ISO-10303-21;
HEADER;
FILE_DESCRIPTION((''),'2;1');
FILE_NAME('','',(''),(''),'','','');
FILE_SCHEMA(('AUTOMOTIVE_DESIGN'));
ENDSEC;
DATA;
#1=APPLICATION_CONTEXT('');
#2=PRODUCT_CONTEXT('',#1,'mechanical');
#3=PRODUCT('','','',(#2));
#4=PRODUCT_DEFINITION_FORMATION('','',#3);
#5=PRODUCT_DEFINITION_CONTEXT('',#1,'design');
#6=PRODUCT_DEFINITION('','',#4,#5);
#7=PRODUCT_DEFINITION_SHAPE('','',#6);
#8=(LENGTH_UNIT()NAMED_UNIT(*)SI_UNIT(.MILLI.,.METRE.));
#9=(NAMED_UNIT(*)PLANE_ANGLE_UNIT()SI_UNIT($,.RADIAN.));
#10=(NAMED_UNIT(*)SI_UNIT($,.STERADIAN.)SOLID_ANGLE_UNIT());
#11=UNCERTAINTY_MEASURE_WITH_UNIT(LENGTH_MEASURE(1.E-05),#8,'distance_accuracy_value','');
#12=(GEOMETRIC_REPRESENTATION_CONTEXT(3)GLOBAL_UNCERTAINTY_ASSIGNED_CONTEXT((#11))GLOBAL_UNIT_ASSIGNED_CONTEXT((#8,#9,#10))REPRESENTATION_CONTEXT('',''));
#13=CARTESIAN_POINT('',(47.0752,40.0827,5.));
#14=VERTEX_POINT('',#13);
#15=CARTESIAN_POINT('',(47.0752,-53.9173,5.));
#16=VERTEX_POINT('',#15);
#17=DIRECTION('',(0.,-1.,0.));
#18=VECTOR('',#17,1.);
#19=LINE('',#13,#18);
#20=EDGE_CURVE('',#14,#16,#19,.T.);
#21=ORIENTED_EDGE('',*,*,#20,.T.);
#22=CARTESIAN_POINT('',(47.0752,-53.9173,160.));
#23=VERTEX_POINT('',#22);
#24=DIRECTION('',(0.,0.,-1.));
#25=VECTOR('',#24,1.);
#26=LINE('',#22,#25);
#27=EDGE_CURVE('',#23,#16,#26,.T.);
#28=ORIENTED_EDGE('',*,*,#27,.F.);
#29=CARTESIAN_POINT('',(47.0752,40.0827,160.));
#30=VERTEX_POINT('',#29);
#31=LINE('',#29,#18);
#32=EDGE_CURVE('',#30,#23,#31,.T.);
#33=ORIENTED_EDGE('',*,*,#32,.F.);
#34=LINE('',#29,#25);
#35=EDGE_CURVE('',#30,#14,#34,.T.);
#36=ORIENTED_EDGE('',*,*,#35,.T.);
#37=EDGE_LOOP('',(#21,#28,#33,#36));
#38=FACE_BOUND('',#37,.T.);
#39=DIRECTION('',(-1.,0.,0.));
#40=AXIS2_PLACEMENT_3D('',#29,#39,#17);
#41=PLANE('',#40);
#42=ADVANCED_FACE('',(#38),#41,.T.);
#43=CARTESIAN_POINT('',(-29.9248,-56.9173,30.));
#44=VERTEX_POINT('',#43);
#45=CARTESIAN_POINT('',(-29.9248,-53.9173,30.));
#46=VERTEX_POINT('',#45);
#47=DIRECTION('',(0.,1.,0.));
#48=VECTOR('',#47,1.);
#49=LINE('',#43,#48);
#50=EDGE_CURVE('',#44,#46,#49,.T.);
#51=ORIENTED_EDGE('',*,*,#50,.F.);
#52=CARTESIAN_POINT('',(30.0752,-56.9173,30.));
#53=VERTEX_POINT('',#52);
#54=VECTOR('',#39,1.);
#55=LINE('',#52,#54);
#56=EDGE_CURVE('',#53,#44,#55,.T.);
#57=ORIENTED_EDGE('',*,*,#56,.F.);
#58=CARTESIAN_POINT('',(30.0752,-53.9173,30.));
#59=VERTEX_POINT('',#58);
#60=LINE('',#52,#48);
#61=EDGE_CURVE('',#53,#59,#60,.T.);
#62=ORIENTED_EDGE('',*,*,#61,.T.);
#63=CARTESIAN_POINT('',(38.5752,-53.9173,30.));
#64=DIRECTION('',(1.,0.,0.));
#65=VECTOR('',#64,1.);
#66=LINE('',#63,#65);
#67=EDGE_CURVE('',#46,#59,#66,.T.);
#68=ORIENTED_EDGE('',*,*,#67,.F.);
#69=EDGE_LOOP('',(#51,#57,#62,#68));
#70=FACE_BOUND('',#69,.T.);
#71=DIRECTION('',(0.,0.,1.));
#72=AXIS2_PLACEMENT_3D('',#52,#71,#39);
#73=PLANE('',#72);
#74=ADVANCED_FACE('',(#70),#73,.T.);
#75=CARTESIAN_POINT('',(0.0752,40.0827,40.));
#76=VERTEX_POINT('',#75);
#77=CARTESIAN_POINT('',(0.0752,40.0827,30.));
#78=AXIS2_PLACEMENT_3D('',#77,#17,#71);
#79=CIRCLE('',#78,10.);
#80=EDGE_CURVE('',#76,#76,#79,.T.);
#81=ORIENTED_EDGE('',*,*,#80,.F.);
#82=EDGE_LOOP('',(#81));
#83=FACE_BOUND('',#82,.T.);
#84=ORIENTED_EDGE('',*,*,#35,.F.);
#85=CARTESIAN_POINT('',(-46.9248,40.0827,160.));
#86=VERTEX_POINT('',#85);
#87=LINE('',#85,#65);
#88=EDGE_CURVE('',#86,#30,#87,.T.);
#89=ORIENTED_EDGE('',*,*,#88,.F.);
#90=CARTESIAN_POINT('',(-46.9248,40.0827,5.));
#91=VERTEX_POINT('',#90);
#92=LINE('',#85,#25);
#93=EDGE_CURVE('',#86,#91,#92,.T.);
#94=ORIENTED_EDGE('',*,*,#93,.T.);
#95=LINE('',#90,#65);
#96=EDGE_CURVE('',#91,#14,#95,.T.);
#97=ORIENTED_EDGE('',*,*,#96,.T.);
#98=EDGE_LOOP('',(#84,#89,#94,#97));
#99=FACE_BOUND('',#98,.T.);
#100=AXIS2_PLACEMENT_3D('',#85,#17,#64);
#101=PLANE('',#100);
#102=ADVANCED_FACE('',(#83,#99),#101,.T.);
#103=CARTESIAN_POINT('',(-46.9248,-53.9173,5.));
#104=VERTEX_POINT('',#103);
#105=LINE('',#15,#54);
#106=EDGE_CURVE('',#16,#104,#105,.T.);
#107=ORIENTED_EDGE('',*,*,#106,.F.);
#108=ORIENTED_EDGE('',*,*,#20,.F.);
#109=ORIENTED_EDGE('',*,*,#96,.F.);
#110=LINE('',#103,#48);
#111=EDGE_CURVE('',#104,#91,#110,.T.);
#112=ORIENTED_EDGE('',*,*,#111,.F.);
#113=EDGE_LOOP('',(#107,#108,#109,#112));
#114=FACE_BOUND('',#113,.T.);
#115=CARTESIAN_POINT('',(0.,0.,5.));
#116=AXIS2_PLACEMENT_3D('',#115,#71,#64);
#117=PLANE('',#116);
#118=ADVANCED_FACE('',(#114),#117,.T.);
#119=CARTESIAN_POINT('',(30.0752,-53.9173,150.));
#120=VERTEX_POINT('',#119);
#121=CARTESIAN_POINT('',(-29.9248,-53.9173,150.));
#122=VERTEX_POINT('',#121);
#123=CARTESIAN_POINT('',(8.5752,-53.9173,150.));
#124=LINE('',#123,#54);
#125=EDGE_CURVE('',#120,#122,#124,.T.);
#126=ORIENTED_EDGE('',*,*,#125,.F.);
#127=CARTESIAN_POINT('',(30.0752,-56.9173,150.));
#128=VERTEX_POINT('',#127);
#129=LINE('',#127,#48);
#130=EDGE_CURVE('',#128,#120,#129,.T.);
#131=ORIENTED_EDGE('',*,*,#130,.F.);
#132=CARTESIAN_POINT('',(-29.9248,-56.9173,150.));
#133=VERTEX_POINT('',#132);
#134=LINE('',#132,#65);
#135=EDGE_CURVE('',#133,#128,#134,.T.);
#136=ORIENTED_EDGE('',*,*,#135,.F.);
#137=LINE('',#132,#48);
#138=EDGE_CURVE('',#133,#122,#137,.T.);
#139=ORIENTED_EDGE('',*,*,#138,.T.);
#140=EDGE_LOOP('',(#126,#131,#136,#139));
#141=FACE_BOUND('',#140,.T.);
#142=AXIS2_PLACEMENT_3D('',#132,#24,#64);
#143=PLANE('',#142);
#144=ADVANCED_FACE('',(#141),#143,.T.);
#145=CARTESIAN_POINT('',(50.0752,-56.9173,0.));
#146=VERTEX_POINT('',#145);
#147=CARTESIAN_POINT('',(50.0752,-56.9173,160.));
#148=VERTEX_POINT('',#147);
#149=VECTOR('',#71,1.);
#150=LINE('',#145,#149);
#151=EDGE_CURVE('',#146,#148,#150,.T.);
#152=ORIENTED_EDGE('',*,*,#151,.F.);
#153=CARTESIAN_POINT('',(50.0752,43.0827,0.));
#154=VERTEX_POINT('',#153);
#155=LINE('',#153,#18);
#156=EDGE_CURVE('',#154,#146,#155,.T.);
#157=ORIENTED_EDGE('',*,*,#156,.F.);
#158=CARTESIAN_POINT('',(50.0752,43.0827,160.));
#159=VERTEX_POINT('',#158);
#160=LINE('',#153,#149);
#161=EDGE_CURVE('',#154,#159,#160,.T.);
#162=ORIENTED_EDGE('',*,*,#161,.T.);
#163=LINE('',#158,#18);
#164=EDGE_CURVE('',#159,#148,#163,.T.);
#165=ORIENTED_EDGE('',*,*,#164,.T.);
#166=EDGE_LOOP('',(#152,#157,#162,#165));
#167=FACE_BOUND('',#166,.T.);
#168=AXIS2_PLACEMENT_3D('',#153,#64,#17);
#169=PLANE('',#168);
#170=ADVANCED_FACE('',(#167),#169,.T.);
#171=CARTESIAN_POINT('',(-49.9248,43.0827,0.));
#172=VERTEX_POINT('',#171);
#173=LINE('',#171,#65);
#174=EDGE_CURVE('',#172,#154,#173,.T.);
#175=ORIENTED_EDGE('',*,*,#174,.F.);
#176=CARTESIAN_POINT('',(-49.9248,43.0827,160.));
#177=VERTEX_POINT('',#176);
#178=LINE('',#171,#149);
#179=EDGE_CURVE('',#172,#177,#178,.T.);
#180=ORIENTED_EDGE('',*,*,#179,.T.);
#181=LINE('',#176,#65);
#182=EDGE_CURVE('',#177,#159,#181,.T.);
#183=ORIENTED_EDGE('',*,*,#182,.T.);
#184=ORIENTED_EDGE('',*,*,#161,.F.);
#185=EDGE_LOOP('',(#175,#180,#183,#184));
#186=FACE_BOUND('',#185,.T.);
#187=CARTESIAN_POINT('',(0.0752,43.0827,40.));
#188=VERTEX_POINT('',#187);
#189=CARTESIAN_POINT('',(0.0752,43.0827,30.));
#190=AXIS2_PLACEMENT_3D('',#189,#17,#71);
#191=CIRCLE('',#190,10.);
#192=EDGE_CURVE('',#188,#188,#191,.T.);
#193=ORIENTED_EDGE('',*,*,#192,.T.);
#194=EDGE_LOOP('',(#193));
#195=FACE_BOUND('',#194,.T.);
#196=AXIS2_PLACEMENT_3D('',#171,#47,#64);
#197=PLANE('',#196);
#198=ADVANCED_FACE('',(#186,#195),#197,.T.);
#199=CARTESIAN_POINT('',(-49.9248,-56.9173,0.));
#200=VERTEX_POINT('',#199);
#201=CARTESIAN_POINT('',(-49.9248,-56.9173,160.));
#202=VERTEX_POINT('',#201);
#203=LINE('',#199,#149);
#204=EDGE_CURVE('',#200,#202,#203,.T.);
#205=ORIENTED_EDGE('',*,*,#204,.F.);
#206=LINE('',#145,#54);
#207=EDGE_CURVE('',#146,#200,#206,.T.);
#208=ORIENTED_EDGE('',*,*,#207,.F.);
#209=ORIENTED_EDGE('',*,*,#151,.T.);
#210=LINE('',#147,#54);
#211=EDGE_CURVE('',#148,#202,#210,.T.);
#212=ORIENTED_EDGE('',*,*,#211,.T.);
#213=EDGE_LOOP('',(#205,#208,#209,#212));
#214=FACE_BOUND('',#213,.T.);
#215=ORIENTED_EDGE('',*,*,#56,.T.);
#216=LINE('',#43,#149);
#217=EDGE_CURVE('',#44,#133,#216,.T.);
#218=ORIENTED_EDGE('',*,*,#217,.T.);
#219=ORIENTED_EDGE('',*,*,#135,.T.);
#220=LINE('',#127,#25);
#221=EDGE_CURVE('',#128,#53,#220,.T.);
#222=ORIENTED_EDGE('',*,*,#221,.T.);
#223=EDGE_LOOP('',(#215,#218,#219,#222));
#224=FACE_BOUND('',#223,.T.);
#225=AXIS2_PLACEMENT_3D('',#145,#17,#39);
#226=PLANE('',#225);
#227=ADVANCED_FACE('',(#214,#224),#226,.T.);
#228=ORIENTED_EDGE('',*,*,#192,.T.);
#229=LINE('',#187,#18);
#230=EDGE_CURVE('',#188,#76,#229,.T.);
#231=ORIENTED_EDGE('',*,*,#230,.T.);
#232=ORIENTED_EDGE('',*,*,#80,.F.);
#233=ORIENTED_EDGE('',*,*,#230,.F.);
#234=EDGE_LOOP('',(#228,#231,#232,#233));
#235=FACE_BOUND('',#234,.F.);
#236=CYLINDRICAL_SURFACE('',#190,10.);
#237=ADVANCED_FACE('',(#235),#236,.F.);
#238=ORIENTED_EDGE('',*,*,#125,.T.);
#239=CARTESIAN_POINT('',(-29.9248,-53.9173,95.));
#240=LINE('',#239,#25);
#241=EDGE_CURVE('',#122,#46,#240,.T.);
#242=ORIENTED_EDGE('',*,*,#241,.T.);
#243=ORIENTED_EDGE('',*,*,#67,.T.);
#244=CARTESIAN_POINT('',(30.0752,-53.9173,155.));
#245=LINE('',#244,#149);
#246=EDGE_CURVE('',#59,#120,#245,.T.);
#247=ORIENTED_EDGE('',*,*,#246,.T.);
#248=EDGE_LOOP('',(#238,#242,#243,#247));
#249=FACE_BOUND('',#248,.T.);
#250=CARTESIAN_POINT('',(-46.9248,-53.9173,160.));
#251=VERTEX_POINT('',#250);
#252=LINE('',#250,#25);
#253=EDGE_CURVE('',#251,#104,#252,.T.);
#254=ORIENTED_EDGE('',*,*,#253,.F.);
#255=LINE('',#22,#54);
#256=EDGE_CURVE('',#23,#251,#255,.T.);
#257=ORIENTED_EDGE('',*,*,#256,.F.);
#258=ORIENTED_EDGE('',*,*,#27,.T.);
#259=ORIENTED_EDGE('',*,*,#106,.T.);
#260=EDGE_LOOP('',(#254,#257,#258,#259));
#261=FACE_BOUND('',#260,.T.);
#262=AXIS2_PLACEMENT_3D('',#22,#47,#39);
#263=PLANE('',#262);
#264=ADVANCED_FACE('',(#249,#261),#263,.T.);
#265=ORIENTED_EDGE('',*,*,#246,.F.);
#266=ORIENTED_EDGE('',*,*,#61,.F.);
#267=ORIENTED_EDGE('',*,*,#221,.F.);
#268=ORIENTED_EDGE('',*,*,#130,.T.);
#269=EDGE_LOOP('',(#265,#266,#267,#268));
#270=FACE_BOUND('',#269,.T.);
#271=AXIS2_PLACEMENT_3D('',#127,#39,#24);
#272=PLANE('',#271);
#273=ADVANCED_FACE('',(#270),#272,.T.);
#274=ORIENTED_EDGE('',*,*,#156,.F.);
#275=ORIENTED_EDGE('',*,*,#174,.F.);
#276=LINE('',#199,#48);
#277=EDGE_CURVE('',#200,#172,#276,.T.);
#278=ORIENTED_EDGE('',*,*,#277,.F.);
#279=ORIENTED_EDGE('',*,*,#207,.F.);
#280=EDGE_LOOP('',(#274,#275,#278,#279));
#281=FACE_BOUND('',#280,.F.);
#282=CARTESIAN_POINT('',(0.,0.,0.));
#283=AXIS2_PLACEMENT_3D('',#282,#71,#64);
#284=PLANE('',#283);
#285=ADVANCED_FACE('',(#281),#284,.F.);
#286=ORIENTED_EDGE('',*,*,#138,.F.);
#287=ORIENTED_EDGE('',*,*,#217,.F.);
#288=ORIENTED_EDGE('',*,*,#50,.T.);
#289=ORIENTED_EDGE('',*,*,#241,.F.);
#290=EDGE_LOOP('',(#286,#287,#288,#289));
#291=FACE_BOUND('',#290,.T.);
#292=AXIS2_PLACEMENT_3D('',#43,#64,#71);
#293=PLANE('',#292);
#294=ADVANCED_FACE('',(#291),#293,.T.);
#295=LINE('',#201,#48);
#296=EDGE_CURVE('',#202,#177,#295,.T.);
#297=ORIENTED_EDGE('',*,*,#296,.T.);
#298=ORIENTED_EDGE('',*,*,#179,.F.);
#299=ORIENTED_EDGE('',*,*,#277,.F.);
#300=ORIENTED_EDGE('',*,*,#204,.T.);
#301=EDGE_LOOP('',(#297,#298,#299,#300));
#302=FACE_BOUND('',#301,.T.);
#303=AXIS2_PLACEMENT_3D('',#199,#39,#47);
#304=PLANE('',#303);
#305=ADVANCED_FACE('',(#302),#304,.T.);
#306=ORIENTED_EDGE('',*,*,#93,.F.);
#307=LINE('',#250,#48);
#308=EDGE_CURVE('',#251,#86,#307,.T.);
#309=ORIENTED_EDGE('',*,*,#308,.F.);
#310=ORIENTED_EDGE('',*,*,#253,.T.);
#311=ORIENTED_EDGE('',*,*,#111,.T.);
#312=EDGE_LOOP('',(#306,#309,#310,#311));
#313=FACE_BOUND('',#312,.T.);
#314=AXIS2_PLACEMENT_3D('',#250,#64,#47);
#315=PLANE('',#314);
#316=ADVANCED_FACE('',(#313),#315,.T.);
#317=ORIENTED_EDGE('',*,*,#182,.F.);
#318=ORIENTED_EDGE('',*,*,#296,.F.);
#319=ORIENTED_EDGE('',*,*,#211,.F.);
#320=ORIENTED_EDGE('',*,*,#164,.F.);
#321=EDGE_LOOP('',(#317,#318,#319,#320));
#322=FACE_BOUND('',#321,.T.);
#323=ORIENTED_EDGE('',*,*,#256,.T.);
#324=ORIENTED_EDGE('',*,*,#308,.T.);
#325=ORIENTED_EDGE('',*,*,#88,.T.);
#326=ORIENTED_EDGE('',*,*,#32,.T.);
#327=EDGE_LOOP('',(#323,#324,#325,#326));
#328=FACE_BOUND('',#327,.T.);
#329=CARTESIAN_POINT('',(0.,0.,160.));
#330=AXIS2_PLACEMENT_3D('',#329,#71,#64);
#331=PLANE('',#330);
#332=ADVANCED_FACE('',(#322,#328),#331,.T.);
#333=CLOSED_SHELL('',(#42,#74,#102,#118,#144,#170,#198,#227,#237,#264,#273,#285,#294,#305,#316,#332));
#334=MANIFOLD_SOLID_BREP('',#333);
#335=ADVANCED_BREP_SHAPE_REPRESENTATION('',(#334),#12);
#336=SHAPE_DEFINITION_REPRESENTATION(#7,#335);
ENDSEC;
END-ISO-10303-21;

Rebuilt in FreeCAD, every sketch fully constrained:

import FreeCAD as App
import Part
import Sketcher


def add_polygon(sketch, points):
    """Adds a closed chain of lines whose ends are joined by coincident constraints."""
    first, n = sketch.GeometryCount, len(points)
    for a, b in zip(points, points[1:] + points[:1]):
        sketch.addGeometry(Part.LineSegment(App.Vector(*a, 0), App.Vector(*b, 0)), False)
    for i in range(n):
        sketch.addConstraint(Sketcher.Constraint("Coincident", first + i, 2, first + (i + 1) % n, 1))

doc = App.newDocument("Part")
body = doc.addObject("PartDesign::Body", "Body")

# Sketch on XY plane
sketch1 = body.newObject("Sketcher::SketchObject", "Sketch")
sketch1.AttachmentSupport = (doc.getObject("XY_Plane"), [""])
sketch1.MapMode = "FlatFace"
add_polygon(sketch1, [(50, 43), (-50, 43), (-50, -57), (50, -57)])  # lines 0-3
sketch1.addConstraint([
    Sketcher.Constraint("Horizontal", 0),
    Sketcher.Constraint("Vertical", 1),
    Sketcher.Constraint("Horizontal", 2),
    Sketcher.Constraint("Vertical", 3),
    Sketcher.Constraint("Equal", 2, 1),
    Sketcher.Constraint("DistanceX", 0, 2, 0, 1, 100.0),
    Sketcher.Constraint("DistanceX", 0, 2, -1, 1, 49.9248),
    Sketcher.Constraint("DistanceY", -1, 1, 0, 2, 43.0827),
])
pad1 = body.newObject("PartDesign::Pad", "Pad")
pad1.Profile = sketch1
pad1.Length = 160

# Sketch on XY plane
sketch2 = body.newObject("Sketcher::SketchObject", "Sketch001")
sketch2.AttachmentSupport = (doc.getObject("XY_Plane"), [""])
sketch2.MapMode = "FlatFace"
sketch2.AttachmentOffset = App.Placement(App.Vector(0, 0, 160), App.Rotation())
add_polygon(sketch2, [(47, 40), (-47, 40), (-47, -54), (47, -54)])  # lines 0-3
sketch2.addConstraint([
    Sketcher.Constraint("Horizontal", 0),
    Sketcher.Constraint("Vertical", 1),
    Sketcher.Constraint("Horizontal", 2),
    Sketcher.Constraint("Vertical", 3),
    Sketcher.Constraint("Equal", 2, 1),
    Sketcher.Constraint("DistanceX", 0, 2, 0, 1, 94.0),
    Sketcher.Constraint("DistanceX", 0, 2, -1, 1, 46.9248),
    Sketcher.Constraint("DistanceY", -1, 1, 0, 2, 40.0827),
])
pocket1 = body.newObject("PartDesign::Pocket", "Pocket")
pocket1.Profile = sketch2
pocket1.Length = 155

# Sketch on XZ plane
sketch3 = body.newObject("Sketcher::SketchObject", "Sketch002")
sketch3.AttachmentSupport = (doc.getObject("XZ_Plane"), [""])
sketch3.MapMode = "FlatFace"
sketch3.AttachmentOffset = App.Placement(App.Vector(0, 0, -43.0827), App.Rotation())
sketch3.addGeometry(Part.Circle(App.Vector(0, 30, 0), App.Vector(0, 0, 1), 10), False)
sketch3.addConstraint([
    Sketcher.Constraint("Diameter", 0, 20.0),
    Sketcher.Constraint("DistanceY", -1, 1, 0, 3, 30.0),
    Sketcher.Constraint("DistanceX", -1, 1, 0, 3, 0.0752),
])
doc.recompute()
hole = body.newObject("PartDesign::Hole", "Hole")
hole.Profile = sketch3
hole.ThreadType = "None"
hole.Diameter = 20
hole.DepthType = "Dimension"
hole.Depth = 8
hole.DrillPoint = "Angled"
hole.DrillPointAngle = 118
hole.Reversed = True

# Sketch on XZ plane
sketch4 = body.newObject("Sketcher::SketchObject", "Sketch003")
sketch4.AttachmentSupport = (doc.getObject("XZ_Plane"), [""])
sketch4.MapMode = "FlatFace"
sketch4.AttachmentOffset = App.Placement(App.Vector(0, 0, 56.9173), App.Rotation())
add_polygon(sketch4, [(30, 150), (-30, 150), (-30, 30), (30, 30)])  # lines 0-3
sketch4.addConstraint([
    Sketcher.Constraint("Horizontal", 0),
    Sketcher.Constraint("Vertical", 1),
    Sketcher.Constraint("Horizontal", 2),
    Sketcher.Constraint("Vertical", 3),
    Sketcher.Constraint("DistanceX", 0, 2, 0, 1, 60.0),
    Sketcher.Constraint("DistanceY", 1, 2, 1, 1, 120.0),
    Sketcher.Constraint("DistanceY", -1, 1, 1, 2, 30.0),
    Sketcher.Constraint("DistanceX", 0, 2, -1, 1, 29.9248),
])
pocket2 = body.newObject("PartDesign::Pocket", "Pocket001")
pocket2.Profile = sketch4
pocket2.Length = 5

doc.recompute()
